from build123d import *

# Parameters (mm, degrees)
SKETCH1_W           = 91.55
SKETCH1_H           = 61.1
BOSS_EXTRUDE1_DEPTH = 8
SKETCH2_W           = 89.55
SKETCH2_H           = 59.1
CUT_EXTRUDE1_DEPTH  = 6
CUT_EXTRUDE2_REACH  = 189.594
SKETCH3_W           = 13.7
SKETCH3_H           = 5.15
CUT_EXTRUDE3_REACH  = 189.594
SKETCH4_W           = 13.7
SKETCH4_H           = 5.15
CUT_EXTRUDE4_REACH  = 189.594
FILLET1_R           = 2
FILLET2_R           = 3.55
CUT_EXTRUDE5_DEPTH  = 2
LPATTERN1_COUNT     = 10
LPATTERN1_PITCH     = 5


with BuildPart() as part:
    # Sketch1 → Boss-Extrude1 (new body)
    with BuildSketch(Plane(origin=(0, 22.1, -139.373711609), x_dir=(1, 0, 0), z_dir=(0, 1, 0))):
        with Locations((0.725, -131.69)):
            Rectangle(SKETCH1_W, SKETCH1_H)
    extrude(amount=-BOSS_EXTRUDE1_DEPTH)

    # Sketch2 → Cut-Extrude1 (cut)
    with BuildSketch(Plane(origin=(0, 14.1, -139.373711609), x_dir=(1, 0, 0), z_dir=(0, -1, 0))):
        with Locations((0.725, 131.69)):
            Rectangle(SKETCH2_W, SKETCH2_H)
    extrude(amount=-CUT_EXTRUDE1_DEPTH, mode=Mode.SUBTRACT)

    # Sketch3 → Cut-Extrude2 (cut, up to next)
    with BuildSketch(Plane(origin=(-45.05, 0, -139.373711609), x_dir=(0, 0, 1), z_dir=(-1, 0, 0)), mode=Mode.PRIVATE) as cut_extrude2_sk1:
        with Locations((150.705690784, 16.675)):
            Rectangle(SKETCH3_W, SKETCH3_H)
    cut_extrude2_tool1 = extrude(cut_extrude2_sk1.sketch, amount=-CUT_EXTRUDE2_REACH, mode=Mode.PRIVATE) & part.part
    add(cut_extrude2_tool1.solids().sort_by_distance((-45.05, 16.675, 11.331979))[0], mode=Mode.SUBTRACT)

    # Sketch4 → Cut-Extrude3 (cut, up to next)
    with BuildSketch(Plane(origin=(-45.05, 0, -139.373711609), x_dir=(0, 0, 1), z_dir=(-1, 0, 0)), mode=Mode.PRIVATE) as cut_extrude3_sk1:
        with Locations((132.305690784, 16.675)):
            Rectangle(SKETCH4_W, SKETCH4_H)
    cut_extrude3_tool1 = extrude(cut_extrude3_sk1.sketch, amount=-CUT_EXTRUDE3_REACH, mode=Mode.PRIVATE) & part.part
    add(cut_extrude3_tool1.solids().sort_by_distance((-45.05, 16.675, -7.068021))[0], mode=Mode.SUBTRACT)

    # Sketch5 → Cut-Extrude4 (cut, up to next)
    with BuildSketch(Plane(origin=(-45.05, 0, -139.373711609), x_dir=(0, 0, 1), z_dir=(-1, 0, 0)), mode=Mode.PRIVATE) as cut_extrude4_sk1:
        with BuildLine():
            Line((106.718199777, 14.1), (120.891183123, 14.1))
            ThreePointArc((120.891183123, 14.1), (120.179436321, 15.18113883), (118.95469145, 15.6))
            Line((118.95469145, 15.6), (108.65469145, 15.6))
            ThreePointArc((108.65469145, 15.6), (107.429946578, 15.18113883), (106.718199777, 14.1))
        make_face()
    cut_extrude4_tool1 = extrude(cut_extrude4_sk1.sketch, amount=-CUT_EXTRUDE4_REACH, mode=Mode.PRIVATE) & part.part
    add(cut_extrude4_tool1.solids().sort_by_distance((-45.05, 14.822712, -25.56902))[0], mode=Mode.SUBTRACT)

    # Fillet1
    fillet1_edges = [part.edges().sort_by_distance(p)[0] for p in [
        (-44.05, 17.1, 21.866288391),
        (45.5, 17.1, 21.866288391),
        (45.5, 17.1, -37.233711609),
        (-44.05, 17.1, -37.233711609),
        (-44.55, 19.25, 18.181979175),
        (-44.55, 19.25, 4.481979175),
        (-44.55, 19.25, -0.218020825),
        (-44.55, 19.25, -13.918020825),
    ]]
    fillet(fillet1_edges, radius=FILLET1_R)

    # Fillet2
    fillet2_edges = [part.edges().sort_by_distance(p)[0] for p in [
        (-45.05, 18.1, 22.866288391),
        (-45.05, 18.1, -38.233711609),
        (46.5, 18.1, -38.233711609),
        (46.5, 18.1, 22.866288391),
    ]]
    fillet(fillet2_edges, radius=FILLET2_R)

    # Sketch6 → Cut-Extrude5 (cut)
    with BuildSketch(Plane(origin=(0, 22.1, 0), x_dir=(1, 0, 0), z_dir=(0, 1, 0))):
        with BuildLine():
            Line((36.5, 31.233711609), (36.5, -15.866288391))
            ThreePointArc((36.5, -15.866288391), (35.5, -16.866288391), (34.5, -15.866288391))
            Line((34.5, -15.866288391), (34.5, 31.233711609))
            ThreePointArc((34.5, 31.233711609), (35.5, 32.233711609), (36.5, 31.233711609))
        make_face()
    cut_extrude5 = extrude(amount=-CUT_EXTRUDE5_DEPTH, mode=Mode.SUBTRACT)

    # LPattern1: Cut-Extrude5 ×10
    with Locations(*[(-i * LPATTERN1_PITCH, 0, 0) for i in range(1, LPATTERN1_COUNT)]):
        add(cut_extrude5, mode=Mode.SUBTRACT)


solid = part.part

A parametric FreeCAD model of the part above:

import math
import FreeCAD as App
import Part
import Sketcher

V = App.Vector


def edges_at(feature, points):
    """Names of the edges that pass closest to the given points."""
    edges = feature.Shape.Edges
    near = lambda p: min(range(len(edges)), key=lambda i: edges[i].distToShape(Part.Vertex(*p))[0])
    return sorted({f"Edge{near(p) + 1}" for p in points})

doc = App.newDocument("Part")
body = doc.addObject("PartDesign::Body", "Body")

sketch1 = body.newObject("Sketcher::SketchObject", "Sketch")
sketch1.AttachmentSupport = (doc.getObject("XZ_Plane"), [""])
sketch1.MapMode = "FlatFace"
sketch1.AttachmentOffset = App.Placement(V(0, 0, -22.1), App.Rotation())
sketch1.addGeometry(Part.LineSegment(V(-45, -38, 0), V(-45, 23, 0)), False)
sketch1.addGeometry(Part.LineSegment(V(-45, 23, 0), V(46, 23, 0)), False)
sketch1.addGeometry(Part.LineSegment(V(46, 23, 0), V(46, -38, 0)), False)
sketch1.addGeometry(Part.LineSegment(V(46, -38, 0), V(-45, -38, 0)), False)
sketch1.addConstraint(Sketcher.Constraint("Coincident", 0, 2, 1, 1))
sketch1.addConstraint(Sketcher.Constraint("Coincident", 1, 2, 2, 1))
sketch1.addConstraint(Sketcher.Constraint("Coincident", 2, 2, 3, 1))
sketch1.addConstraint(Sketcher.Constraint("Coincident", 3, 2, 0, 1))
sketch1.addConstraint(Sketcher.Constraint("Vertical", 0))
sketch1.addConstraint(Sketcher.Constraint("Horizontal", 1))
sketch1.addConstraint(Sketcher.Constraint("Vertical", 2))
sketch1.addConstraint(Sketcher.Constraint("Horizontal", 3))
sketch1.addConstraint(Sketcher.Constraint("DistanceY", 0, 1, 0, 2, 61.1))
sketch1.addConstraint(Sketcher.Constraint("DistanceX", 1, 1, 1, 2, 91.55))
sketch1.addConstraint(Sketcher.Constraint("DistanceX", -1, 1, 1, 2, 46.5))
sketch1.addConstraint(Sketcher.Constraint("DistanceY", -1, 1, 0, 2, 22.866288))
pad1 = body.newObject("PartDesign::Pad", "Pad")
pad1.Profile = sketch1
pad1.Length = 8

sketch2 = body.newObject("Sketcher::SketchObject", "Sketch001")
sketch2.AttachmentSupport = (doc.getObject("XZ_Plane"), [""])
sketch2.MapMode = "FlatFace"
sketch2.AttachmentOffset = App.Placement(V(0, 0, -14.1), App.Rotation())
sketch2.addGeometry(Part.LineSegment(V(-44, 22, 0), V(-44, -37, 0)), False)
sketch2.addGeometry(Part.LineSegment(V(-44, -37, 0), V(46, -37, 0)), False)
sketch2.addGeometry(Part.LineSegment(V(46, -37, 0), V(46, 22, 0)), False)
sketch2.addGeometry(Part.LineSegment(V(46, 22, 0), V(-44, 22, 0)), False)
sketch2.addConstraint(Sketcher.Constraint("Coincident", 0, 2, 1, 1))
sketch2.addConstraint(Sketcher.Constraint("Coincident", 1, 2, 2, 1))
sketch2.addConstraint(Sketcher.Constraint("Coincident", 2, 2, 3, 1))
sketch2.addConstraint(Sketcher.Constraint("Coincident", 3, 2, 0, 1))
sketch2.addConstraint(Sketcher.Constraint("Vertical", 0))
sketch2.addConstraint(Sketcher.Constraint("Horizontal", 1))
sketch2.addConstraint(Sketcher.Constraint("Vertical", 2))
sketch2.addConstraint(Sketcher.Constraint("Horizontal", 3))
sketch2.addConstraint(Sketcher.Constraint("DistanceY", 0, 2, 0, 1, 59.1))
sketch2.addConstraint(Sketcher.Constraint("DistanceX", 1, 1, 1, 2, 89.55))
sketch2.addConstraint(Sketcher.Constraint("DistanceX", -1, 1, 1, 2, 45.5))
sketch2.addConstraint(Sketcher.Constraint("DistanceY", 0, 2, -1, 1, 37.233712))
pocket1 = body.newObject("PartDesign::Pocket", "Pocket")
pocket1.Profile = sketch2
pocket1.Length = 6

sketch3 = body.newObject("Sketcher::SketchObject", "Sketch002")
sketch3.AttachmentSupport = (doc.getObject("YZ_Plane"), [""])
sketch3.MapMode = "FlatFace"
sketch3.AttachmentOffset = App.Placement(V(0, 0, -45.05), App.Rotation())
sketch3.addGeometry(Part.LineSegment(V(19, 4, 0), V(14, 4, 0)), False)
sketch3.addGeometry(Part.LineSegment(V(14, 4, 0), V(14, 18, 0)), False)
sketch3.addGeometry(Part.LineSegment(V(14, 18, 0), V(19, 18, 0)), False)
sketch3.addGeometry(Part.LineSegment(V(19, 18, 0), V(19, 4, 0)), False)
sketch3.addConstraint(Sketcher.Constraint("Coincident", 0, 2, 1, 1))
sketch3.addConstraint(Sketcher.Constraint("Coincident", 1, 2, 2, 1))
sketch3.addConstraint(Sketcher.Constraint("Coincident", 2, 2, 3, 1))
sketch3.addConstraint(Sketcher.Constraint("Coincident", 3, 2, 0, 1))
sketch3.addConstraint(Sketcher.Constraint("Horizontal", 0))
sketch3.addConstraint(Sketcher.Constraint("Vertical", 1))
sketch3.addConstraint(Sketcher.Constraint("Horizontal", 2))
sketch3.addConstraint(Sketcher.Constraint("Vertical", 3))
sketch3.addConstraint(Sketcher.Constraint("DistanceY", 1, 1, 1, 2, 13.7))
sketch3.addConstraint(Sketcher.Constraint("DistanceX", 0, 2, 0, 1, 5.15))
sketch3.addConstraint(Sketcher.Constraint("DistanceX", -1, 1, 0, 2, 14.1))
sketch3.addConstraint(Sketcher.Constraint("DistanceY", -1, 1, 0, 2, 4.481979))
pocket2 = body.newObject("PartDesign::Pocket", "Pocket001")
pocket2.Profile = sketch3
pocket2.Type = "UpToFirst"
pocket2.Reversed = True

sketch4 = body.newObject("Sketcher::SketchObject", "Sketch003")
sketch4.AttachmentSupport = (doc.getObject("YZ_Plane"), [""])
sketch4.MapMode = "FlatFace"
sketch4.AttachmentOffset = App.Placement(V(0, 0, -45.05), App.Rotation())
sketch4.addGeometry(Part.LineSegment(V(19, -14, 0), V(14, -14, 0)), False)
sketch4.addGeometry(Part.LineSegment(V(14, -14, 0), V(14, 0, 0)), False)
sketch4.addGeometry(Part.LineSegment(V(14, 0, 0), V(19, 0, 0)), False)
sketch4.addGeometry(Part.LineSegment(V(19, 0, 0), V(19, -14, 0)), False)
sketch4.addConstraint(Sketcher.Constraint("Coincident", 0, 2, 1, 1))
sketch4.addConstraint(Sketcher.Constraint("Coincident", 1, 2, 2, 1))
sketch4.addConstraint(Sketcher.Constraint("Coincident", 2, 2, 3, 1))
sketch4.addConstraint(Sketcher.Constraint("Coincident", 3, 2, 0, 1))
sketch4.addConstraint(Sketcher.Constraint("Horizontal", 0))
sketch4.addConstraint(Sketcher.Constraint("Vertical", 1))
sketch4.addConstraint(Sketcher.Constraint("Horizontal", 2))
sketch4.addConstraint(Sketcher.Constraint("Vertical", 3))
sketch4.addConstraint(Sketcher.Constraint("DistanceY", 1, 1, 1, 2, 13.7))
sketch4.addConstraint(Sketcher.Constraint("DistanceX", 0, 2, 0, 1, 5.15))
sketch4.addConstraint(Sketcher.Constraint("DistanceX", -1, 1, 0, 2, 14.1))
sketch4.addConstraint(Sketcher.Constraint("DistanceY", 0, 2, -1, 1, 13.918021))
pocket3 = body.newObject("PartDesign::Pocket", "Pocket002")
pocket3.Profile = sketch4
pocket3.Type = "UpToFirst"
pocket3.Reversed = True

sketch5 = body.newObject("Sketcher::SketchObject", "Sketch004")
sketch5.AttachmentSupport = (doc.getObject("YZ_Plane"), [""])
sketch5.MapMode = "FlatFace"
sketch5.AttachmentOffset = App.Placement(V(0, 0, -45.05), App.Rotation())
sketch5.addGeometry(Part.LineSegment(V(14.1, -32.7, 0), V(14.1, -18.5, 0)), False)
sketch5.addGeometry(Part.ArcOfCircle(Part.Circle(V(13.6, -20.4, 0), V(0, 0, 1), 2), math.radians(0), math.radians(76)), False)
sketch5.addGeometry(Part.LineSegment(V(15.6, -20.4, 0), V(15.6, -30.7, 0)), False)
sketch5.addGeometry(Part.ArcOfCircle(Part.Circle(V(13.6, -30.7, 0), V(0, 0, 1), 2), math.radians(-76), math.radians(0)), False)
sketch5.addConstraint(Sketcher.Constraint("Coincident", 0, 2, 1, 2))
sketch5.addConstraint(Sketcher.Constraint("Tangent", 1, 1, 2, 1))
sketch5.addConstraint(Sketcher.Constraint("Tangent", 2, 2, 3, 2))
sketch5.addConstraint(Sketcher.Constraint("Coincident", 3, 1, 0, 1))
sketch5.addConstraint(Sketcher.Constraint("Vertical", 0))
sketch5.addConstraint(Sketcher.Constraint("Vertical", 2))
sketch5.addConstraint(Sketcher.Constraint("Equal", 1, 3))
sketch5.addConstraint(Sketcher.Constraint("Radius", 1, 2.0))
sketch5.addConstraint(Sketcher.Constraint("DistanceY", 2, 2, 2, 1, 10.3))
sketch5.addConstraint(Sketcher.Constraint("DistanceX", -1, 1, 1, 3, 13.6))
sketch5.addConstraint(Sketcher.Constraint("DistanceX", -1, 1, 0, 2, 14.1))
sketch5.addConstraint(Sketcher.Constraint("DistanceY", 1, 3, -1, 1, 20.41902))
pocket4 = body.newObject("PartDesign::Pocket", "Pocket003")
pocket4.Profile = sketch5
pocket4.Type = "UpToFirst"
pocket4.Reversed = True
doc.recompute()

fillet = body.newObject("PartDesign::Fillet", "Fillet")
fillet.Base = (pocket4, edges_at(pocket4, [
    (-44.05, 17.1, 21.866),
    (45.5, 17.1, 21.866),
    (45.5, 17.1, -37.234),
    (-44.05, 17.1, -37.234),
    (-44.55, 19.25, 18.182),
    (-44.55, 19.25, 4.482),
    (-44.55, 19.25, -0.218),
    (-44.55, 19.25, -13.918),
]))
fillet.Radius = 2
doc.recompute()

fillet2 = body.newObject("PartDesign::Fillet", "Fillet001")
fillet2.Base = (fillet, edges_at(fillet, [
    (-45.05, 18.1, 22.866),
    (-45.05, 18.1, -38.234),
    (46.5, 18.1, -38.234),
    (46.5, 18.1, 22.866),
]))
fillet2.Radius = 3.55

sketch6 = body.newObject("Sketcher::SketchObject", "Sketch005")
sketch6.AttachmentSupport = (doc.getObject("XZ_Plane"), [""])
sketch6.MapMode = "FlatFace"
sketch6.AttachmentOffset = App.Placement(V(0, 0, -22.1), App.Rotation())
sketch6.addGeometry(Part.LineSegment(V(36.5, 15.9, 0), V(36.5, -31.2, 0)), False)
sketch6.addGeometry(Part.ArcOfCircle(Part.Circle(V(35.5, -31.2, 0), V(0, 0, 1), 1), math.radians(180), math.radians(360)), False)
sketch6.addGeometry(Part.LineSegment(V(34.5, -31.2, 0), V(34.5, 15.9, 0)), False)
sketch6.addGeometry(Part.ArcOfCircle(Part.Circle(V(35.5, 15.9, 0), V(0, 0, 1), 1), math.radians(0), math.radians(180)), False)
sketch6.addConstraint(Sketcher.Constraint("Tangent", 0, 2, 1, 2))
sketch6.addConstraint(Sketcher.Constraint("Tangent", 1, 1, 2, 1))
sketch6.addConstraint(Sketcher.Constraint("Tangent", 2, 2, 3, 2))
sketch6.addConstraint(Sketcher.Constraint("Tangent", 3, 1, 0, 1))
sketch6.addConstraint(Sketcher.Constraint("Vertical", 0))
sketch6.addConstraint(Sketcher.Constraint("Vertical", 2))
sketch6.addConstraint(Sketcher.Constraint("Radius", 1, 1.0))
sketch6.addConstraint(Sketcher.Constraint("DistanceY", 0, 2, 0, 1, 47.1))
sketch6.addConstraint(Sketcher.Constraint("DistanceX", -1, 1, 1, 3, 35.5))
sketch6.addConstraint(Sketcher.Constraint("DistanceY", 1, 3, -1, 1, 31.233712))
pocket5 = body.newObject("PartDesign::Pocket", "Pocket004")
pocket5.Profile = sketch6
pocket5.Length = 2
pocket5.Reversed = True
doc.recompute()

linearpattern = body.newObject("PartDesign::LinearPattern", "LinearPattern")
linearpattern.Originals = [pocket5]
linearpattern.Direction = (doc.getObject("X_Axis"), [""])
linearpattern.Mode = "offset"
linearpattern.Offset = 5
linearpattern.Occurrences = 10
linearpattern.Reversed = True
body.Tip = linearpattern

doc.recompute()
